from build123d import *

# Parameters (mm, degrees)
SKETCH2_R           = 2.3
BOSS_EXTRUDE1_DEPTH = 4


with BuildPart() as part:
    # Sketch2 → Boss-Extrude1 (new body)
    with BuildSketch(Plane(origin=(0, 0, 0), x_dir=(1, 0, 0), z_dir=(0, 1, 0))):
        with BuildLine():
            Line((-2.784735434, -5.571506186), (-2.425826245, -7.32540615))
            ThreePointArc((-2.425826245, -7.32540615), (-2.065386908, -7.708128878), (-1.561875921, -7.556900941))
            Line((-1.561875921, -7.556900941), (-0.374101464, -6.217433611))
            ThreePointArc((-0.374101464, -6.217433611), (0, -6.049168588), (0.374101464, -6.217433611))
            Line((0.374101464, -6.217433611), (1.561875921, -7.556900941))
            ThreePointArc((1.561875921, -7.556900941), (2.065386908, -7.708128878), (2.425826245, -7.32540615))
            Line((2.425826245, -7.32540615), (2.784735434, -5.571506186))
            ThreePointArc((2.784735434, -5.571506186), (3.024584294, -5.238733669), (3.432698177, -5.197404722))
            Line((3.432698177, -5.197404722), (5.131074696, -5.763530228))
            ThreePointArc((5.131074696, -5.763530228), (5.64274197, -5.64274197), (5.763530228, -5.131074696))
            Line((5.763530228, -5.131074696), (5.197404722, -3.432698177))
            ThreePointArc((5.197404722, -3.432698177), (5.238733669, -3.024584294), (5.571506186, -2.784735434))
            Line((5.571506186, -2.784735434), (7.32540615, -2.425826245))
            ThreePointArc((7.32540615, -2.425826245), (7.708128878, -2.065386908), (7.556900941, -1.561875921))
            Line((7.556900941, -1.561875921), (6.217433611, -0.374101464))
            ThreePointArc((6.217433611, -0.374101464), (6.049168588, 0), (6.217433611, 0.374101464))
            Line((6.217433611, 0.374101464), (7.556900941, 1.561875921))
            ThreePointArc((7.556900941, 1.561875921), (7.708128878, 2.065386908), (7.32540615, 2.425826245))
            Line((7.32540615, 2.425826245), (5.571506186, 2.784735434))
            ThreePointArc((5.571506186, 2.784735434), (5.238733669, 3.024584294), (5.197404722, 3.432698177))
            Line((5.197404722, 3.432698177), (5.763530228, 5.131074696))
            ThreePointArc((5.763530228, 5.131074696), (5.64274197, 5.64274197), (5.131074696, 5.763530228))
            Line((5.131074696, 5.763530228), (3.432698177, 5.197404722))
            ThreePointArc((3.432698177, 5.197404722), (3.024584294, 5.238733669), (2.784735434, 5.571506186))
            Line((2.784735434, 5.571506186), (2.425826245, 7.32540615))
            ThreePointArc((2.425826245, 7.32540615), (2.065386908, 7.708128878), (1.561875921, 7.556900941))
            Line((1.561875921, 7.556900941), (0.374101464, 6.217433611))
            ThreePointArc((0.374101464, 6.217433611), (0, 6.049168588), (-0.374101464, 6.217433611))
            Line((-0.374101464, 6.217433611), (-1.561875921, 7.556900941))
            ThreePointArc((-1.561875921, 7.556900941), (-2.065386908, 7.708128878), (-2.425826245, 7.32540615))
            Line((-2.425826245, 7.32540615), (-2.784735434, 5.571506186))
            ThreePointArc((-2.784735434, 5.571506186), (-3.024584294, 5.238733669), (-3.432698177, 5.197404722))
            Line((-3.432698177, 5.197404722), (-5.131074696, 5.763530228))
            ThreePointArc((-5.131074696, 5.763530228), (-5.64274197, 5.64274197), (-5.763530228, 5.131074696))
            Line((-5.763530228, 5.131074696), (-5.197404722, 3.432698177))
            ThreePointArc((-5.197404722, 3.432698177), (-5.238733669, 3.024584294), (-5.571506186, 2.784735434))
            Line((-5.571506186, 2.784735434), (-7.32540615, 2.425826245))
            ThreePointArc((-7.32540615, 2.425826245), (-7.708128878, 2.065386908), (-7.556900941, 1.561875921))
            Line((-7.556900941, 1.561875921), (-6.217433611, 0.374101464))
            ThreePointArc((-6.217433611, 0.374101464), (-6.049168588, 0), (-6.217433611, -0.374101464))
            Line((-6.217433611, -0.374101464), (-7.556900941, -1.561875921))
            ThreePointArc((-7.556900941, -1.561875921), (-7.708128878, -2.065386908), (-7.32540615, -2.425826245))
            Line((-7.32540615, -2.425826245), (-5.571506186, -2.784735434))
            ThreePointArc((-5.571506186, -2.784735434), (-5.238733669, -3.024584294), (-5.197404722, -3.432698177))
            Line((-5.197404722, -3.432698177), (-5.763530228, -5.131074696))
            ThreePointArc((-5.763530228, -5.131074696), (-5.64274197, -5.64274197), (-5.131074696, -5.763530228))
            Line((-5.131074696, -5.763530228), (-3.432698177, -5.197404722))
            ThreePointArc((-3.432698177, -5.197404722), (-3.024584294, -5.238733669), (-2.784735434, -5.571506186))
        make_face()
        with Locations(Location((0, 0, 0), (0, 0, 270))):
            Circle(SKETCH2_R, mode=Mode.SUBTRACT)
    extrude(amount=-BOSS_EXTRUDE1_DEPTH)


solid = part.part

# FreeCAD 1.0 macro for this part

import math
import FreeCAD as App
import Part
import Sketcher
Q = App.Units.Quantity

doc = App.newDocument("Part")
body = doc.addObject("PartDesign::Body", "Body")

# Sketch on XZ plane
sketch1 = doc.addObject("Sketcher::SketchObject", "Sketch")
body.addObject(sketch1)
sketch1.AttachmentSupport = (doc.XZ_Plane, [""])
sketch1.MapMode = "FlatFace"
sketch1.addGeometry([
    Part.LineSegment(App.Vector(-2.78, 5.57, 0), App.Vector(-2.43, 7.33, 0)),  # 0
    Part.ArcOfCircle(Part.Circle(App.Vector(-1.94, 7.23, 0), App.Vector(0, 0, 1), 0.5), math.radians(42), math.radians(168)),  # 1
    Part.LineSegment(App.Vector(-1.56, 7.56, 0), App.Vector(-0.37, 6.22, 0)),  # 2
    Part.ArcOfCircle(Part.Circle(App.Vector(0, 6.55, 0), App.Vector(0, 0, 1), 0.5), math.radians(-138), math.radians(-42)),  # 3
    Part.LineSegment(App.Vector(0.37, 6.22, 0), App.Vector(1.56, 7.56, 0)),  # 4
    Part.ArcOfCircle(Part.Circle(App.Vector(1.94, 7.23, 0), App.Vector(0, 0, 1), 0.5), math.radians(12), math.radians(138)),  # 5
    Part.LineSegment(App.Vector(2.43, 7.33, 0), App.Vector(2.78, 5.57, 0)),  # 6
    Part.ArcOfCircle(Part.Circle(App.Vector(3.27, 5.67, 0), App.Vector(0, 0, 1), 0.5), math.radians(-168), math.radians(-72)),  # 7
    Part.LineSegment(App.Vector(3.43, 5.2, 0), App.Vector(5.13, 5.76, 0)),  # 8
    Part.ArcOfCircle(Part.Circle(App.Vector(5.29, 5.29, 0), App.Vector(0, 0, 1), 0.5), math.radians(-18), math.radians(108)),  # 9
    Part.LineSegment(App.Vector(5.76, 5.13, 0), App.Vector(5.2, 3.43, 0)),  # 10
    Part.ArcOfCircle(Part.Circle(App.Vector(5.67, 3.27, 0), App.Vector(0, 0, 1), 0.5), math.radians(162), math.radians(258)),  # 11
    Part.LineSegment(App.Vector(5.57, 2.78, 0), App.Vector(7.33, 2.43, 0)),  # 12
    Part.ArcOfCircle(Part.Circle(App.Vector(7.23, 1.94, 0), App.Vector(0, 0, 1), 0.5), math.radians(-48), math.radians(78)),  # 13
    Part.LineSegment(App.Vector(7.56, 1.56, 0), App.Vector(6.22, 0.37, 0)),  # 14
    Part.ArcOfCircle(Part.Circle(App.Vector(6.55, 0, 0), App.Vector(0, 0, 1), 0.5), math.radians(132), math.radians(228)),  # 15
    Part.LineSegment(App.Vector(6.22, -0.37, 0), App.Vector(7.56, -1.56, 0)),  # 16
    Part.ArcOfCircle(Part.Circle(App.Vector(7.23, -1.94, 0), App.Vector(0, 0, 1), 0.5), math.radians(-78), math.radians(48)),  # 17
    Part.LineSegment(App.Vector(7.33, -2.43, 0), App.Vector(5.57, -2.78, 0)),  # 18
    Part.ArcOfCircle(Part.Circle(App.Vector(5.67, -3.27, 0), App.Vector(0, 0, 1), 0.5), math.radians(102), math.radians(198)),  # 19
    Part.LineSegment(App.Vector(5.2, -3.43, 0), App.Vector(5.76, -5.13, 0)),  # 20
    Part.ArcOfCircle(Part.Circle(App.Vector(5.29, -5.29, 0), App.Vector(0, 0, 1), 0.5), math.radians(-108), math.radians(18)),  # 21
    Part.LineSegment(App.Vector(5.13, -5.76, 0), App.Vector(3.43, -5.2, 0)),  # 22
    Part.ArcOfCircle(Part.Circle(App.Vector(3.27, -5.67, 0), App.Vector(0, 0, 1), 0.5), math.radians(72), math.radians(168)),  # 23
    Part.LineSegment(App.Vector(2.78, -5.57, 0), App.Vector(2.43, -7.33, 0)),  # 24
    Part.ArcOfCircle(Part.Circle(App.Vector(1.94, -7.23, 0), App.Vector(0, 0, 1), 0.5), math.radians(-138), math.radians(-12)),  # 25
    Part.LineSegment(App.Vector(1.56, -7.56, 0), App.Vector(0.37, -6.22, 0)),  # 26
    Part.ArcOfCircle(Part.Circle(App.Vector(0, -6.55, 0), App.Vector(0, 0, 1), 0.5), math.radians(42), math.radians(138)),  # 27
    Part.LineSegment(App.Vector(-0.37, -6.22, 0), App.Vector(-1.56, -7.56, 0)),  # 28
    Part.ArcOfCircle(Part.Circle(App.Vector(-1.94, -7.23, 0), App.Vector(0, 0, 1), 0.5), math.radians(-168), math.radians(-42)),  # 29
    Part.LineSegment(App.Vector(-2.43, -7.33, 0), App.Vector(-2.78, -5.57, 0)),  # 30
    Part.ArcOfCircle(Part.Circle(App.Vector(-3.27, -5.67, 0), App.Vector(0, 0, 1), 0.5), math.radians(12), math.radians(108)),  # 31
    Part.LineSegment(App.Vector(-3.43, -5.2, 0), App.Vector(-5.13, -5.76, 0)),  # 32
    Part.ArcOfCircle(Part.Circle(App.Vector(-5.29, -5.29, 0), App.Vector(0, 0, 1), 0.5), math.radians(162), math.radians(288)),  # 33
    Part.LineSegment(App.Vector(-5.76, -5.13, 0), App.Vector(-5.2, -3.43, 0)),  # 34
    Part.ArcOfCircle(Part.Circle(App.Vector(-5.67, -3.27, 0), App.Vector(0, 0, 1), 0.5), math.radians(-18), math.radians(78)),  # 35
    Part.LineSegment(App.Vector(-5.57, -2.78, 0), App.Vector(-7.33, -2.43, 0)),  # 36
    Part.ArcOfCircle(Part.Circle(App.Vector(-7.23, -1.94, 0), App.Vector(0, 0, 1), 0.5), math.radians(132), math.radians(258)),  # 37
    Part.LineSegment(App.Vector(-7.56, -1.56, 0), App.Vector(-6.22, -0.37, 0)),  # 38
    Part.ArcOfCircle(Part.Circle(App.Vector(-6.55, 0, 0), App.Vector(0, 0, 1), 0.5), math.radians(-48), math.radians(48)),  # 39
    Part.LineSegment(App.Vector(-6.22, 0.37, 0), App.Vector(-7.56, 1.56, 0)),  # 40
    Part.ArcOfCircle(Part.Circle(App.Vector(-7.23, 1.94, 0), App.Vector(0, 0, 1), 0.5), math.radians(102), math.radians(228)),  # 41
    Part.LineSegment(App.Vector(-7.33, 2.43, 0), App.Vector(-5.57, 2.78, 0)),  # 42
    Part.ArcOfCircle(Part.Circle(App.Vector(-5.67, 3.27, 0), App.Vector(0, 0, 1), 0.5), math.radians(-78), math.radians(18)),  # 43
    Part.LineSegment(App.Vector(-5.2, 3.43, 0), App.Vector(-5.76, 5.13, 0)),  # 44
    Part.ArcOfCircle(Part.Circle(App.Vector(-5.29, 5.29, 0), App.Vector(0, 0, 1), 0.5), math.radians(72), math.radians(198)),  # 45
    Part.LineSegment(App.Vector(-5.13, 5.76, 0), App.Vector(-3.43, 5.2, 0)),  # 46
    Part.ArcOfCircle(Part.Circle(App.Vector(-3.27, 5.67, 0), App.Vector(0, 0, 1), 0.5), math.radians(-108), math.radians(-12)),  # 47
    Part.Circle(App.Vector(0, 0, 0), App.Vector(0, 0, 1), 2.3),  # 48
], False)
sketch1.addConstraint([
    Sketcher.Constraint("Tangent", 0, 2, 1, 2),
    Sketcher.Constraint("Tangent", 1, 1, 2, 1),
    Sketcher.Constraint("Tangent", 2, 2, 3, 1),
    Sketcher.Constraint("Tangent", 3, 2, 4, 1),
    Sketcher.Constraint("Tangent", 4, 2, 5, 2),
    Sketcher.Constraint("Tangent", 5, 1, 6, 1),
    Sketcher.Constraint("Tangent", 6, 2, 7, 1),
    Sketcher.Constraint("Tangent", 7, 2, 8, 1),
    Sketcher.Constraint("Tangent", 8, 2, 9, 2),
    Sketcher.Constraint("Tangent", 9, 1, 10, 1),
    Sketcher.Constraint("Tangent", 10, 2, 11, 1),
    Sketcher.Constraint("Tangent", 11, 2, 12, 1),
    Sketcher.Constraint("Tangent", 12, 2, 13, 2),
    Sketcher.Constraint("Tangent", 13, 1, 14, 1),
    Sketcher.Constraint("Tangent", 14, 2, 15, 1),
    Sketcher.Constraint("Tangent", 15, 2, 16, 1),
    Sketcher.Constraint("Tangent", 16, 2, 17, 2),
    Sketcher.Constraint("Tangent", 17, 1, 18, 1),
    Sketcher.Constraint("Tangent", 18, 2, 19, 1),
    Sketcher.Constraint("Tangent", 19, 2, 20, 1),
    Sketcher.Constraint("Tangent", 20, 2, 21, 2),
    Sketcher.Constraint("Tangent", 21, 1, 22, 1),
    Sketcher.Constraint("Tangent", 22, 2, 23, 1),
    Sketcher.Constraint("Tangent", 23, 2, 24, 1),
    Sketcher.Constraint("Tangent", 24, 2, 25, 2),
    Sketcher.Constraint("Tangent", 25, 1, 26, 1),
    Sketcher.Constraint("Tangent", 26, 2, 27, 1),
    Sketcher.Constraint("Tangent", 27, 2, 28, 1),
    Sketcher.Constraint("Tangent", 28, 2, 29, 2),
    Sketcher.Constraint("Tangent", 29, 1, 30, 1),
    Sketcher.Constraint("Tangent", 30, 2, 31, 1),
    Sketcher.Constraint("Tangent", 31, 2, 32, 1),
    Sketcher.Constraint("Tangent", 32, 2, 33, 2),
    Sketcher.Constraint("Tangent", 33, 1, 34, 1),
    Sketcher.Constraint("Tangent", 34, 2, 35, 1),
    Sketcher.Constraint("Tangent", 35, 2, 36, 1),
    Sketcher.Constraint("Tangent", 36, 2, 37, 2),
    Sketcher.Constraint("Tangent", 37, 1, 38, 1),
    Sketcher.Constraint("Tangent", 38, 2, 39, 1),
    Sketcher.Constraint("Tangent", 39, 2, 40, 1),
    Sketcher.Constraint("Tangent", 40, 2, 41, 2),
    Sketcher.Constraint("Tangent", 41, 1, 42, 1),
    Sketcher.Constraint("Tangent", 42, 2, 43, 1),
    Sketcher.Constraint("Tangent", 43, 2, 44, 1),
    Sketcher.Constraint("Tangent", 44, 2, 45, 2),
    Sketcher.Constraint("Tangent", 45, 1, 46, 1),
    Sketcher.Constraint("Tangent", 46, 2, 47, 1),
    Sketcher.Constraint("Tangent", 47, 2, 0, 1),
    Sketcher.Constraint("Coincident", 48, 3, -1, 1),
    Sketcher.Constraint("Equal", 1, 3),
    Sketcher.Constraint("Equal", 3, 5),
    Sketcher.Constraint("Equal", 5, 7),
    Sketcher.Constraint("Equal", 7, 9),
    Sketcher.Constraint("Equal", 9, 11),
    Sketcher.Constraint("Equal", 11, 13),
    Sketcher.Constraint("Equal", 13, 15),
    Sketcher.Constraint("Equal", 15, 17),
    Sketcher.Constraint("Equal", 17, 19),
    Sketcher.Constraint("Equal", 19, 21),
    Sketcher.Constraint("Equal", 21, 23),
    Sketcher.Constraint("Equal", 23, 25),
    Sketcher.Constraint("Equal", 25, 27),
    Sketcher.Constraint("Equal", 27, 29),
    Sketcher.Constraint("Equal", 29, 31),
    Sketcher.Constraint("Equal", 31, 33),
    Sketcher.Constraint("Equal", 33, 35),
    Sketcher.Constraint("Equal", 35, 37),
    Sketcher.Constraint("Equal", 37, 39),
    Sketcher.Constraint("Equal", 39, 41),
    Sketcher.Constraint("Equal", 41, 43),
    Sketcher.Constraint("Equal", 43, 45),
    Sketcher.Constraint("Equal", 45, 47),
    Sketcher.Constraint("Symmetric", 1, 3, 25, 3, -1, 1),
    Sketcher.Constraint("Symmetric", 3, 3, 27, 3, -1, 1),
    Sketcher.Constraint("Symmetric", 5, 3, 29, 3, -1, 1),
    Sketcher.Constraint("Symmetric", 7, 3, 31, 3, -1, 1),
    Sketcher.Constraint("Symmetric", 9, 3, 33, 3, -1, 1),
    Sketcher.Constraint("Symmetric", 11, 3, 35, 3, -1, 1),
    Sketcher.Constraint("Symmetric", 13, 3, 37, 3, -1, 1),
    Sketcher.Constraint("Symmetric", 15, 3, 39, 3, -1, 1),
    Sketcher.Constraint("Symmetric", 17, 3, 41, 3, -1, 1),
    Sketcher.Constraint("Symmetric", 19, 3, 43, 3, -1, 1),
    Sketcher.Constraint("Symmetric", 21, 3, 45, 3, -1, 1),
    Sketcher.Constraint("Symmetric", 23, 3, 47, 3, -1, 1),
    Sketcher.Constraint("Symmetric", 1, 3, 5, 3, -2),
    Sketcher.Constraint("Symmetric", 23, 3, 31, 3, -2),
    Sketcher.Constraint("Symmetric", 21, 3, 33, 3, -2),
    Sketcher.Constraint("Symmetric", 19, 3, 35, 3, -2),
    Sketcher.Constraint("Symmetric", 17, 3, 37, 3, -2),
    Sketcher.Constraint("PointOnObject", 3, 3, -2),
    Sketcher.Constraint("PointOnObject", 15, 3, -1),
    Sketcher.Constraint("Perpendicular", 0, 12),
    Sketcher.Constraint("Perpendicular", 2, 14),
    Sketcher.Constraint("Perpendicular", 8, 20),
    Sketcher.Constraint("Equal", 0, 2),
    Sketcher.Constraint("Equal", 6, 8),
    Sketcher.Constraint("Equal", 8, 10),
    Sketcher.Constraint("Equal", 10, 12),
    Sketcher.Constraint("Equal", 12, 14),
    Sketcher.Constraint("Diameter", 48, Q("4.6 mm")),
    Sketcher.Constraint("Radius", 1, Q("0.5 mm")),
    Sketcher.Constraint("DistanceY", -1, 1, 1, 1, Q("7.556901 mm")),
    Sketcher.Constraint("DistanceX", 2, 2, -1, 1, Q("0.374101 mm")),
    Sketcher.Constraint("DistanceX", -1, 1, 7, 2, Q("3.432698 mm")),
    Sketcher.Constraint("DistanceY", -1, 1, 3, 3, Q("6.549169 mm")),
])
pad1 = doc.addObject("PartDesign::Pad", "Pad")
body.addObject(pad1)
pad1.Profile = sketch1
pad1.Length = 4

doc.recompute()
